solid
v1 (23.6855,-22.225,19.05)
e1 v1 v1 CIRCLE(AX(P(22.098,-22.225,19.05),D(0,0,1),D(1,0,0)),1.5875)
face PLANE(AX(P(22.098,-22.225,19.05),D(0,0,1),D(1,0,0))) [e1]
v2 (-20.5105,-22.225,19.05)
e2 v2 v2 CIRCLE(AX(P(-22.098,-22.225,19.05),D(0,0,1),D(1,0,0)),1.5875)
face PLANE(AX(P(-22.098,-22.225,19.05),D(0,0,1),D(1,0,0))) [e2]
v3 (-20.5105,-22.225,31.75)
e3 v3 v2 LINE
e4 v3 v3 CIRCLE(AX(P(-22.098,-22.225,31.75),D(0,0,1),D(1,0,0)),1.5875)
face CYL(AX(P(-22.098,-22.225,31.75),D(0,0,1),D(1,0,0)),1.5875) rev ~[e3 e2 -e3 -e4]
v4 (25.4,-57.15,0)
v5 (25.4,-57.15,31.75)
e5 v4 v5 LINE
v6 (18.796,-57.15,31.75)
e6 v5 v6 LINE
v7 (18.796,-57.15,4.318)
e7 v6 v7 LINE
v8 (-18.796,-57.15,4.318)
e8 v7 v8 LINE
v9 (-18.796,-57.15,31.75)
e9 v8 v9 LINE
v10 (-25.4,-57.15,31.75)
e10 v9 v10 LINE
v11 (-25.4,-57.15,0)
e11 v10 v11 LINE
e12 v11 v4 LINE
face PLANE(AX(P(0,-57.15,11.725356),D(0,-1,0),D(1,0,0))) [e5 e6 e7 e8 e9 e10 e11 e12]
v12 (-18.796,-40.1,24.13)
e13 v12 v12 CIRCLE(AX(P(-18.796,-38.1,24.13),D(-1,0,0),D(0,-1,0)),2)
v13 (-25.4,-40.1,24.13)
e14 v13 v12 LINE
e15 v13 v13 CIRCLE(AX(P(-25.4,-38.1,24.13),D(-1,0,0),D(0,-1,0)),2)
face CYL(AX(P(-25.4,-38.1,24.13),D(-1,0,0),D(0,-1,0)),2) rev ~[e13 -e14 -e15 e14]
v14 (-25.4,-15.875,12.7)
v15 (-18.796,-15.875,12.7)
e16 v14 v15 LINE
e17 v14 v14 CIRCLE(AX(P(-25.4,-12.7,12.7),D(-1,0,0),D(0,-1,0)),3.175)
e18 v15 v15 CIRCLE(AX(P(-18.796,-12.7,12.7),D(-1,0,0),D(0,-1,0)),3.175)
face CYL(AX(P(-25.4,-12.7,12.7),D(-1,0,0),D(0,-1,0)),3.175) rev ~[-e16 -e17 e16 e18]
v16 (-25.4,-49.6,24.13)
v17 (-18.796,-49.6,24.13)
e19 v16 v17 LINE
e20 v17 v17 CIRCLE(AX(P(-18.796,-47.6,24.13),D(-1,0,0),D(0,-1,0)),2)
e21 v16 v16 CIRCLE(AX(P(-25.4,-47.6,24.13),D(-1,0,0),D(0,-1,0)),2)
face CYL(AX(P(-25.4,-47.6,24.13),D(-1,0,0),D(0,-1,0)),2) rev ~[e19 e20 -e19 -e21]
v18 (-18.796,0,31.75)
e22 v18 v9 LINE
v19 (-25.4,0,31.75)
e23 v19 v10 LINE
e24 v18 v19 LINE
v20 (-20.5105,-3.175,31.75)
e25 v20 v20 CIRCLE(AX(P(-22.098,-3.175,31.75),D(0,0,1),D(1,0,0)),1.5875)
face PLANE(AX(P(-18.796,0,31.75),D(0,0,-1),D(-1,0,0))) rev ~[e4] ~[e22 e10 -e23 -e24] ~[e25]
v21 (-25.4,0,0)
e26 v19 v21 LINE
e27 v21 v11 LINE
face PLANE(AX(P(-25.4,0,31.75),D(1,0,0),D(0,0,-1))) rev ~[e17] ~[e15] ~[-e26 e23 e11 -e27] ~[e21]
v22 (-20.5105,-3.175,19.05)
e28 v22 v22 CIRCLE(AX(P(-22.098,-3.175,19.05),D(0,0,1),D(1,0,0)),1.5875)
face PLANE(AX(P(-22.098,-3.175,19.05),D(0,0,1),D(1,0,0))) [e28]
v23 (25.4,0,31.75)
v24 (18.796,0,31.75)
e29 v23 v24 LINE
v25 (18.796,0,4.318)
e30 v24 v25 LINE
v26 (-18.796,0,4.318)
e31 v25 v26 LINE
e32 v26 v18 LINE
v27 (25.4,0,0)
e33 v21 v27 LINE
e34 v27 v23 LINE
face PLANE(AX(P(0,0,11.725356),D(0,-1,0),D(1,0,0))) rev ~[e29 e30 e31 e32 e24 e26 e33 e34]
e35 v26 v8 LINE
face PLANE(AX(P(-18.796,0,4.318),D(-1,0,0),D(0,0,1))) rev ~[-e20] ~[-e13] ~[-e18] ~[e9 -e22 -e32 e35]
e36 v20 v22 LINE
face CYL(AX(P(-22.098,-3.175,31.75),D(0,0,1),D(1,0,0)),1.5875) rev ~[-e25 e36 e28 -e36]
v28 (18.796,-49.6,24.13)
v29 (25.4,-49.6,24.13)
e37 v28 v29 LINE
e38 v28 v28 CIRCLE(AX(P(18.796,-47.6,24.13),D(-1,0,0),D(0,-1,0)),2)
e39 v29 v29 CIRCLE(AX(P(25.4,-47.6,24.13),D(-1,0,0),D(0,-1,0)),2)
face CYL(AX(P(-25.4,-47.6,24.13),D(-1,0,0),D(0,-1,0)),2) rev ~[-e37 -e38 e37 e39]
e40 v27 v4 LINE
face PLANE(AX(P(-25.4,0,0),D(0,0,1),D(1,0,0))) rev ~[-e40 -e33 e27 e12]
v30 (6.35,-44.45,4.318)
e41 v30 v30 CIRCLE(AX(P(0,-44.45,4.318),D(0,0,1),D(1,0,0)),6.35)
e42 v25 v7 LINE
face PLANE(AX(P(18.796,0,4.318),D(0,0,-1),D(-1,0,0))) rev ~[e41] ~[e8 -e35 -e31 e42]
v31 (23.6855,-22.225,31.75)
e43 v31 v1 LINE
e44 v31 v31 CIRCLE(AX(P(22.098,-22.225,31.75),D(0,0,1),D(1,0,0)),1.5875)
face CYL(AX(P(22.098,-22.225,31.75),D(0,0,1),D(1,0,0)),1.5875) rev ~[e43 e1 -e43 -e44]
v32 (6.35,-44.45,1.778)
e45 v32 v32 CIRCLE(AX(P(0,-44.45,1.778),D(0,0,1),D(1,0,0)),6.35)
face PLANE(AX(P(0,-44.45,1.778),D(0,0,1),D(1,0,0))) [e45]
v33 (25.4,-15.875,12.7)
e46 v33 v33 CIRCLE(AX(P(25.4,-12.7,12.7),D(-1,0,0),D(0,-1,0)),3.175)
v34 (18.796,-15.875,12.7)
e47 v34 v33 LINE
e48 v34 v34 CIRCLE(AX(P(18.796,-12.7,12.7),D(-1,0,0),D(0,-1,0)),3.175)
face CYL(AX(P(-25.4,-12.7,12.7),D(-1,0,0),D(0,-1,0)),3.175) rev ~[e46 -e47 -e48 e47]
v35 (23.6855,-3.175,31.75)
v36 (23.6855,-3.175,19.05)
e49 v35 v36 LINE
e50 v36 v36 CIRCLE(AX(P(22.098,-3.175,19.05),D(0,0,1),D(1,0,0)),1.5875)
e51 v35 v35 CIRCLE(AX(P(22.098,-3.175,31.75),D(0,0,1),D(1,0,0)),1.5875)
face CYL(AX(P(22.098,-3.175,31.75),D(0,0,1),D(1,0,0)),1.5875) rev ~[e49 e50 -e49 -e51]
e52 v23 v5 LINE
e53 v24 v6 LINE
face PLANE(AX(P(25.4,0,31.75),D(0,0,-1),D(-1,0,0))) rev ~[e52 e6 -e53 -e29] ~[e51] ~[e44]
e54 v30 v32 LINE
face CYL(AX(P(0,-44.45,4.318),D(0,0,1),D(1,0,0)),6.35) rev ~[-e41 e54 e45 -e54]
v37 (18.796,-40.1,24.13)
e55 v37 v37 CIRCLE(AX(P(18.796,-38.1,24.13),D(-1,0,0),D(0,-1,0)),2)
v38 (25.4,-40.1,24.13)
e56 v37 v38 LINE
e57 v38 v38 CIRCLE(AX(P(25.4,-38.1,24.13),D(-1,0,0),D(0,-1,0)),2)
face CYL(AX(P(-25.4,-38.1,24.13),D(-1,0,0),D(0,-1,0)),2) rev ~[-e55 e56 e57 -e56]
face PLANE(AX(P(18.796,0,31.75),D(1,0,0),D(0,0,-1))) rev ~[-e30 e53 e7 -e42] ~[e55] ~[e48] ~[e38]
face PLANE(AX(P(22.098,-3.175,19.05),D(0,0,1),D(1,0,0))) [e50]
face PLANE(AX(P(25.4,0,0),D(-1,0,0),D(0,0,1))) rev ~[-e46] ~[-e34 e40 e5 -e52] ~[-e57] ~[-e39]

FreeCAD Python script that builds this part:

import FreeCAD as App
import Part
import Sketcher
Q = App.Units.Quantity


def add_polygon(sketch, points):
    """Adds a closed chain of lines whose ends are joined by coincident constraints."""
    first, n = sketch.GeometryCount, len(points)
    for a, b in zip(points, points[1:] + points[:1]):
        sketch.addGeometry(Part.LineSegment(App.Vector(*a, 0), App.Vector(*b, 0)), False)
    for i in range(n):
        sketch.addConstraint(Sketcher.Constraint("Coincident", first + i, 2, first + (i + 1) % n, 1))

doc = App.newDocument("Part")
body = doc.addObject("PartDesign::Body", "Body")

sketch1 = doc.addObject("Sketcher::SketchObject", "Sketch")
body.addObject(sketch1)
sketch1.AttachmentSupport = (doc.XZ_Plane, [""])
sketch1.MapMode = "FlatFace"
add_polygon(sketch1, [(-25, 0), (25, 0), (25, 32), (19, 32), (19, 4), (-19, 4), (-19, 32), (-25, 32)])
sketch1.addConstraint([
    Sketcher.Constraint("Horizontal", 0),
    Sketcher.Constraint("Vertical", 1),
    Sketcher.Constraint("Horizontal", 2),
    Sketcher.Constraint("Vertical", 3),
    Sketcher.Constraint("Horizontal", 4),
    Sketcher.Constraint("Vertical", 5),
    Sketcher.Constraint("Horizontal", 6),
    Sketcher.Constraint("Vertical", 7),
    Sketcher.Constraint("Symmetric", 0, 2, 7, 2, -1, 1),
    Sketcher.Constraint("Symmetric", 2, 2, 5, 2, -2),
    Sketcher.Constraint("DistanceX", 0, 1, 0, 2, Q("2 in")),
    Sketcher.Constraint("DistanceX", 2, 2, 2, 1, Q("0.26 in")),
    Sketcher.Constraint("DistanceY", 1, 1, 1, 2, Q("1.25 in")),
    Sketcher.Constraint("DistanceY", 3, 2, 3, 1, Q("1.08 in")),
])
pad1 = doc.addObject("PartDesign::Pad", "Pad")
body.addObject(pad1)
pad1.Profile = sketch1
pad1.Length = Q("2.25 in")

sketch2 = doc.addObject("Sketcher::SketchObject", "Sketch001")
body.addObject(sketch2)
sketch2.AttachmentSupport = (doc.YZ_Plane, [""])
sketch2.MapMode = "FlatFace"
sketch2.AttachmentOffset = App.Placement(App.Vector(0, 0, -1 * 25.4), App.Rotation())
sketch2.addGeometry(Part.Circle(App.Vector(-12.7, 12.7, 0), App.Vector(0, 0, 1), 3.2), False)
sketch2.addConstraint([
    Sketcher.Constraint("Diameter", 0, Q("0.25 in")),
    Sketcher.Constraint("DistanceX", 0, 3, -1, 1, Q("0.5 in")),
    Sketcher.Constraint("DistanceY", -1, 1, 0, 3, Q("0.5 in")),
])
pocket1 = doc.addObject("PartDesign::Pocket", "Pocket")
body.addObject(pocket1)
pocket1.Profile = sketch2
pocket1.Type = "ThroughAll"
pocket1.Reversed = True

sketch3 = doc.addObject("Sketcher::SketchObject", "Sketch002")
body.addObject(sketch3)
sketch3.AttachmentSupport = (doc.XY_Plane, [""])
sketch3.MapMode = "FlatFace"
sketch3.AttachmentOffset = App.Placement(App.Vector(0, 0, 0.17 * 25.4), App.Rotation())
sketch3.addGeometry(Part.Circle(App.Vector(0, -44, 0), App.Vector(0, 0, 1), 6), False)
sketch3.addConstraint([
    Sketcher.Constraint("PointOnObject", 0, 3, -2),
    Sketcher.Constraint("Diameter", 0, Q("0.5 in")),
    Sketcher.Constraint("DistanceY", 0, 3, -1, 1, Q("1.75 in")),
])
pocket2 = doc.addObject("PartDesign::Pocket", "Pocket001")
body.addObject(pocket2)
pocket2.Profile = sketch3
pocket2.Length = Q("0.1 in")

sketch4 = doc.addObject("Sketcher::SketchObject", "Sketch003")
body.addObject(sketch4)
sketch4.AttachmentSupport = (doc.YZ_Plane, [""])
sketch4.MapMode = "FlatFace"
sketch4.AttachmentOffset = App.Placement(App.Vector(0, 0, -1 * 25.4), App.Rotation())
sketch4.addGeometry([
    Part.Circle(App.Vector(-38.1, 24.1, 0), App.Vector(0, 0, 1), 2),
    Part.Circle(App.Vector(-47.6, 24.1, 0), App.Vector(0, 0, 1), 2),
], False)
sketch4.addConstraint([
    Sketcher.Constraint("Equal", 0, 1),
    Sketcher.Constraint("Horizontal", 0, 3, 1, 3),
    Sketcher.Constraint("DistanceX", 0, 3, -1, 1, Q("1.5 in")),
    Sketcher.Constraint("Diameter", 0, Q("4 mm")),
    Sketcher.Constraint("DistanceY", -1, 1, 0, 3, Q("0.95 in")),
    Sketcher.Constraint("DistanceX", 1, 3, -1, 1, Q("47.6 mm")),
])
pocket3 = doc.addObject("PartDesign::Pocket", "Pocket002")
body.addObject(pocket3)
pocket3.Profile = sketch4
pocket3.Type = "ThroughAll"
pocket3.Reversed = True

sketch5 = doc.addObject("Sketcher::SketchObject", "Sketch004")
body.addObject(sketch5)
sketch5.AttachmentSupport = (doc.XY_Plane, [""])
sketch5.MapMode = "FlatFace"
sketch5.AttachmentOffset = App.Placement(App.Vector(0, 0, 1.25 * 25.4), App.Rotation())
sketch5.addGeometry([
    Part.Circle(App.Vector(-22.1, -3.2, 0), App.Vector(0, 0, 1), 1.6),
    Part.Circle(App.Vector(-22.1, -22.2, 0), App.Vector(0, 0, 1), 1.6),
    Part.Circle(App.Vector(22.1, -3.2, 0), App.Vector(0, 0, 1), 1.6),
    Part.Circle(App.Vector(22.1, -22.2, 0), App.Vector(0, 0, 1), 1.6),
], False)
sketch5.addConstraint([
    Sketcher.Constraint("Equal", 0, 1),
    Sketcher.Constraint("Equal", 1, 2),
    Sketcher.Constraint("Equal", 2, 3),
    Sketcher.Constraint("Symmetric", 0, 3, 2, 3, -2),
    Sketcher.Constraint("Symmetric", 1, 3, 3, 3, -2),
    Sketcher.Constraint("Vertical", 0, 3, 1, 3),
    Sketcher.Constraint("Diameter", 0, Q("0.125 in")),
    Sketcher.Constraint("DistanceX", 0, 3, -1, 1, Q("0.87 in")),
    Sketcher.Constraint("DistanceY", 1, 3, 0, 3, Q("0.75 in")),
    Sketcher.Constraint("DistanceY", 0, 3, -1, 1, Q("0.125 in")),
])
pocket4 = doc.addObject("PartDesign::Pocket", "Pocket003")
body.addObject(pocket4)
pocket4.Profile = sketch5
pocket4.Length = Q("0.5 in")

doc.recompute()
